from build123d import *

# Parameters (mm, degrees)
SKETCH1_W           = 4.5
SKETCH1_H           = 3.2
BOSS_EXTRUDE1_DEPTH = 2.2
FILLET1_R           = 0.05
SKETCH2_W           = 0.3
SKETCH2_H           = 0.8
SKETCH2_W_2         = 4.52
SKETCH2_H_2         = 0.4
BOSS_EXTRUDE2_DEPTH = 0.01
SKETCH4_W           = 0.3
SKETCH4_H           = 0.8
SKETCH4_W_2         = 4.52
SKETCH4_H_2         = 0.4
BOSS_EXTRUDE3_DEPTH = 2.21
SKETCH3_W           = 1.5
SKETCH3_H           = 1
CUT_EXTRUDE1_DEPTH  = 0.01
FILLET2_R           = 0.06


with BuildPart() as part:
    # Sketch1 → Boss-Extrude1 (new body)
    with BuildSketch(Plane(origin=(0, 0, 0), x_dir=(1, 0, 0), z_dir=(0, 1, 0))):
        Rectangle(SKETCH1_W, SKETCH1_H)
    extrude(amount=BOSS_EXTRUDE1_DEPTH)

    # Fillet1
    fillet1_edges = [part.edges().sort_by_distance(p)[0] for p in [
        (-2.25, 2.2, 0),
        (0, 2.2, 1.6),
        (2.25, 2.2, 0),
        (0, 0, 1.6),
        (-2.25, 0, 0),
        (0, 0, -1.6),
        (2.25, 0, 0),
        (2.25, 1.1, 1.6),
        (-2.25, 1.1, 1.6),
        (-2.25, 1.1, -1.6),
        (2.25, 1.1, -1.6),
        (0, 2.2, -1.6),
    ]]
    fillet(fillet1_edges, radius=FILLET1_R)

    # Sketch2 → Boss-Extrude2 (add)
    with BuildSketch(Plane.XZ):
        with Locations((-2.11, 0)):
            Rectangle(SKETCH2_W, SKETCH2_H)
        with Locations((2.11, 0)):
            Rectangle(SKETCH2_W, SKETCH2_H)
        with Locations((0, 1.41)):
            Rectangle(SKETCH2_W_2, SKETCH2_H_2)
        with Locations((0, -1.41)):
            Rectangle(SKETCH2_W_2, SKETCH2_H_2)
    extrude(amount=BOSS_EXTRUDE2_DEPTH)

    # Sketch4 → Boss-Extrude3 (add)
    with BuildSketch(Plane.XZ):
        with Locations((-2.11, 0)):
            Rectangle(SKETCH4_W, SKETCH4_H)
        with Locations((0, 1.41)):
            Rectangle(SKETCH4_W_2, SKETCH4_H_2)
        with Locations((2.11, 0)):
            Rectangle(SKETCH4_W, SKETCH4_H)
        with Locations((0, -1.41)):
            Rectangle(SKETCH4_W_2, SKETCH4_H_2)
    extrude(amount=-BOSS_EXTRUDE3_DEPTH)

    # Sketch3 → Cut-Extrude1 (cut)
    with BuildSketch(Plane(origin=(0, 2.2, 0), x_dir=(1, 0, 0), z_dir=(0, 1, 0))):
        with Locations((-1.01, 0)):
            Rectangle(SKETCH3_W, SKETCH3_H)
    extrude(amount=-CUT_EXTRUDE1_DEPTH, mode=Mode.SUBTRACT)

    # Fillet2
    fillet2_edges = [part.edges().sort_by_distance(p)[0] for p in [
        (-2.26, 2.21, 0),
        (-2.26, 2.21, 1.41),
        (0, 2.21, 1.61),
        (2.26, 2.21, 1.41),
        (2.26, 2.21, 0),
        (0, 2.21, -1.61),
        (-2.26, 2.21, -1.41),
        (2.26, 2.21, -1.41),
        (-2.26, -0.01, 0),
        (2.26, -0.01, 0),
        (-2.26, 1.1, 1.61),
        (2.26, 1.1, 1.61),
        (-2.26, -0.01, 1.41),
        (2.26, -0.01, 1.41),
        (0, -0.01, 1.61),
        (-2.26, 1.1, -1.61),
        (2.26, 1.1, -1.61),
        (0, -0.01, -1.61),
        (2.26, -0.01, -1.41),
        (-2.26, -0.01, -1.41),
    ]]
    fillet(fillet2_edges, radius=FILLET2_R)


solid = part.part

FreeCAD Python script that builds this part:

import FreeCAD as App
import Part
import Sketcher


def edges_at(feature, points):
    """Names of the edges that pass closest to the given points."""
    edges = feature.Shape.Edges
    near = lambda p: min(range(len(edges)), key=lambda i: edges[i].distToShape(Part.Vertex(*p))[0])
    return sorted({f"Edge{near(p) + 1}" for p in points})

doc = App.newDocument("Part")
params = doc.addObject("Spreadsheet::Sheet", "Params")
for row, (alias, value) in enumerate([
    ("sketch1_width", "4.5 mm"),
    ("sketch1_height", "3.2 mm"),
    ("pad1_length", "2.2 mm"),
    ("fillet_radius", "0.05 mm"),
    ("sketch2_width", "0.3 mm"),
    ("sketch2_height", "0.8 mm"),
    ("sketch2_height2", "0.4 mm"),
    ("sketch2_width2", "4.52 mm"),
    ("pad2_length", "0.01 mm"),
    ("sketch3_width", "0.3 mm"),
    ("sketch3_height", "0.8 mm"),
    ("sketch3_height2", "0.4 mm"),
    ("sketch3_width2", "4.52 mm"),
    ("pad3_length", "2.21 mm"),
    ("sketch4_height", "1 mm"),
    ("sketch4_width", "1.5 mm"),
    ("pocket1_length", "0.01 mm"),
    ("fillet2_radius", "0.06 mm"),
], start=1):
    params.set(f"A{row}", alias)
    params.set(f"B{row}", "=" + value)
    params.setAlias(f"B{row}", alias)

body = doc.addObject("PartDesign::Body", "Body")

sketch1 = body.newObject("Sketcher::SketchObject", "Sketch")
sketch1.AttachmentSupport = (doc.getObject("XZ_Plane"), [""])
sketch1.MapMode = "FlatFace"
sketch1.addGeometry(Part.LineSegment(App.Vector(-2.2, -1.6, 0), App.Vector(-2.2, 1.6, 0)), False)
sketch1.addGeometry(Part.LineSegment(App.Vector(-2.2, 1.6, 0), App.Vector(2.2, 1.6, 0)), False)
sketch1.addGeometry(Part.LineSegment(App.Vector(2.2, 1.6, 0), App.Vector(2.2, -1.6, 0)), False)
sketch1.addGeometry(Part.LineSegment(App.Vector(2.2, -1.6, 0), App.Vector(-2.2, -1.6, 0)), False)
sketch1.addConstraint(Sketcher.Constraint("Coincident", 0, 2, 1, 1))
sketch1.addConstraint(Sketcher.Constraint("Coincident", 1, 2, 2, 1))
sketch1.addConstraint(Sketcher.Constraint("Coincident", 2, 2, 3, 1))
sketch1.addConstraint(Sketcher.Constraint("Coincident", 3, 2, 0, 1))
sketch1.addConstraint(Sketcher.Constraint("Vertical", 0))
sketch1.addConstraint(Sketcher.Constraint("Horizontal", 1))
sketch1.addConstraint(Sketcher.Constraint("Vertical", 2))
sketch1.addConstraint(Sketcher.Constraint("Horizontal", 3))
sketch1.addConstraint(Sketcher.Constraint("Symmetric", 0, 2, 2, 2, -1, 1))
sketch1.addConstraint(Sketcher.Constraint("DistanceX", 1, 1, 1, 2, 4.5))
sketch1.addConstraint(Sketcher.Constraint("DistanceY", 0, 1, 0, 2, 3.2))
sketch1.setExpression("Constraints[9]", "Params.sketch1_width")
sketch1.setExpression("Constraints[10]", "Params.sketch1_height")
pad1 = body.newObject("PartDesign::Pad", "Pad")
pad1.Profile = sketch1
pad1.setExpression("Length", "Params.pad1_length")
pad1.Reversed = True
doc.recompute()

fillet = body.newObject("PartDesign::Fillet", "Fillet")
fillet.Base = (pad1, ["Edge1"])
fillet.UseAllEdges = True
fillet.setExpression("Radius", "Params.fillet_radius")

sketch2 = body.newObject("Sketcher::SketchObject", "Sketch001")
sketch2.AttachmentSupport = (doc.getObject("XZ_Plane"), [""])
sketch2.MapMode = "FlatFace"
sketch2.addGeometry(Part.LineSegment(App.Vector(-2.26, 0.4, 0), App.Vector(-2.26, -0.4, 0)), False)
sketch2.addGeometry(Part.LineSegment(App.Vector(-2.26, -0.4, 0), App.Vector(-1.96, -0.4, 0)), False)
sketch2.addGeometry(Part.LineSegment(App.Vector(-1.96, -0.4, 0), App.Vector(-1.96, 0.4, 0)), False)
sketch2.addGeometry(Part.LineSegment(App.Vector(-1.96, 0.4, 0), App.Vector(-2.26, 0.4, 0)), False)
sketch2.addGeometry(Part.LineSegment(App.Vector(1.96, 0.4, 0), App.Vector(1.96, -0.4, 0)), False)
sketch2.addGeometry(Part.LineSegment(App.Vector(1.96, -0.4, 0), App.Vector(2.26, -0.4, 0)), False)
sketch2.addGeometry(Part.LineSegment(App.Vector(2.26, -0.4, 0), App.Vector(2.26, 0.4, 0)), False)
sketch2.addGeometry(Part.LineSegment(App.Vector(2.26, 0.4, 0), App.Vector(1.96, 0.4, 0)), False)
sketch2.addGeometry(Part.LineSegment(App.Vector(-2.26, 1.61, 0), App.Vector(-2.26, 1.21, 0)), False)
sketch2.addGeometry(Part.LineSegment(App.Vector(-2.26, 1.21, 0), App.Vector(2.26, 1.21, 0)), False)
sketch2.addGeometry(Part.LineSegment(App.Vector(2.26, 1.21, 0), App.Vector(2.26, 1.61, 0)), False)
sketch2.addGeometry(Part.LineSegment(App.Vector(2.26, 1.61, 0), App.Vector(-2.26, 1.61, 0)), False)
sketch2.addGeometry(Part.LineSegment(App.Vector(-2.26, -1.21, 0), App.Vector(-2.26, -1.61, 0)), False)
sketch2.addGeometry(Part.LineSegment(App.Vector(-2.26, -1.61, 0), App.Vector(2.26, -1.61, 0)), False)
sketch2.addGeometry(Part.LineSegment(App.Vector(2.26, -1.61, 0), App.Vector(2.26, -1.21, 0)), False)
sketch2.addGeometry(Part.LineSegment(App.Vector(2.26, -1.21, 0), App.Vector(-2.26, -1.21, 0)), False)
sketch2.addConstraint(Sketcher.Constraint("Coincident", 0, 2, 1, 1))
sketch2.addConstraint(Sketcher.Constraint("Coincident", 1, 2, 2, 1))
sketch2.addConstraint(Sketcher.Constraint("Coincident", 2, 2, 3, 1))
sketch2.addConstraint(Sketcher.Constraint("Coincident", 3, 2, 0, 1))
sketch2.addConstraint(Sketcher.Constraint("Coincident", 4, 2, 5, 1))
sketch2.addConstraint(Sketcher.Constraint("Coincident", 5, 2, 6, 1))
sketch2.addConstraint(Sketcher.Constraint("Coincident", 6, 2, 7, 1))
sketch2.addConstraint(Sketcher.Constraint("Coincident", 7, 2, 4, 1))
sketch2.addConstraint(Sketcher.Constraint("Coincident", 8, 2, 9, 1))
sketch2.addConstraint(Sketcher.Constraint("Coincident", 9, 2, 10, 1))
sketch2.addConstraint(Sketcher.Constraint("Coincident", 10, 2, 11, 1))
sketch2.addConstraint(Sketcher.Constraint("Coincident", 11, 2, 8, 1))
sketch2.addConstraint(Sketcher.Constraint("Coincident", 12, 2, 13, 1))
sketch2.addConstraint(Sketcher.Constraint("Coincident", 13, 2, 14, 1))
sketch2.addConstraint(Sketcher.Constraint("Coincident", 14, 2, 15, 1))
sketch2.addConstraint(Sketcher.Constraint("Coincident", 15, 2, 12, 1))
sketch2.addConstraint(Sketcher.Constraint("Vertical", 0))
sketch2.addConstraint(Sketcher.Constraint("Horizontal", 1))
sketch2.addConstraint(Sketcher.Constraint("Vertical", 2))
sketch2.addConstraint(Sketcher.Constraint("Horizontal", 3))
sketch2.addConstraint(Sketcher.Constraint("Vertical", 4))
sketch2.addConstraint(Sketcher.Constraint("Horizontal", 5))
sketch2.addConstraint(Sketcher.Constraint("Vertical", 6))
sketch2.addConstraint(Sketcher.Constraint("Horizontal", 7))
sketch2.addConstraint(Sketcher.Constraint("Vertical", 8))
sketch2.addConstraint(Sketcher.Constraint("Horizontal", 9))
sketch2.addConstraint(Sketcher.Constraint("Vertical", 10))
sketch2.addConstraint(Sketcher.Constraint("Horizontal", 11))
sketch2.addConstraint(Sketcher.Constraint("Vertical", 12))
sketch2.addConstraint(Sketcher.Constraint("Horizontal", 13))
sketch2.addConstraint(Sketcher.Constraint("Vertical", 14))
sketch2.addConstraint(Sketcher.Constraint("Horizontal", 15))
sketch2.addConstraint(Sketcher.Constraint("Symmetric", 2, 2, 4, 2, -1, 1))
sketch2.addConstraint(Sketcher.Constraint("Symmetric", 0, 2, 6, 2, -1, 1))
sketch2.addConstraint(Sketcher.Constraint("Symmetric", 10, 2, 12, 2, -1, 1))
sketch2.addConstraint(Sketcher.Constraint("Symmetric", 8, 2, 14, 2, -1, 1))
sketch2.addConstraint(Sketcher.Constraint("Horizontal", 1, 2, 4, 2))
sketch2.addConstraint(Sketcher.Constraint("Vertical", 3, 2, 8, 2))
sketch2.addConstraint(Sketcher.Constraint("Vertical", 6, 2, 9, 2))
sketch2.addConstraint(Sketcher.Constraint("DistanceX", 1, 1, 1, 2, 0.3))
sketch2.addConstraint(Sketcher.Constraint("DistanceY", 0, 2, 0, 1, 0.8))
sketch2.addConstraint(Sketcher.Constraint("DistanceY", 8, 2, 8, 1, 0.4))
sketch2.addConstraint(Sketcher.Constraint("DistanceX", 9, 1, 9, 2, 4.52))
sketch2.addConstraint(Sketcher.Constraint("DistanceY", -1, 1, 8, 2, 1.21))
sketch2.setExpression("Constraints[39]", "Params.sketch2_width")
sketch2.setExpression("Constraints[40]", "Params.sketch2_height")
sketch2.setExpression("Constraints[41]", "Params.sketch2_height2")
sketch2.setExpression("Constraints[42]", "Params.sketch2_width2")
pad2 = body.newObject("PartDesign::Pad", "Pad001")
pad2.Profile = sketch2
pad2.setExpression("Length", "Params.pad2_length")

sketch3 = body.newObject("Sketcher::SketchObject", "Sketch002")
sketch3.AttachmentSupport = (doc.getObject("XZ_Plane"), [""])
sketch3.MapMode = "FlatFace"
sketch3.addGeometry(Part.LineSegment(App.Vector(-2.26, 0.4, 0), App.Vector(-2.26, -0.4, 0)), False)
sketch3.addGeometry(Part.LineSegment(App.Vector(-2.26, -0.4, 0), App.Vector(-1.96, -0.4, 0)), False)
sketch3.addGeometry(Part.LineSegment(App.Vector(-1.96, -0.4, 0), App.Vector(-1.96, 0.4, 0)), False)
sketch3.addGeometry(Part.LineSegment(App.Vector(-1.96, 0.4, 0), App.Vector(-2.26, 0.4, 0)), False)
sketch3.addGeometry(Part.LineSegment(App.Vector(-2.26, 1.61, 0), App.Vector(-2.26, 1.21, 0)), False)
sketch3.addGeometry(Part.LineSegment(App.Vector(-2.26, 1.21, 0), App.Vector(2.26, 1.21, 0)), False)
sketch3.addGeometry(Part.LineSegment(App.Vector(2.26, 1.21, 0), App.Vector(2.26, 1.61, 0)), False)
sketch3.addGeometry(Part.LineSegment(App.Vector(2.26, 1.61, 0), App.Vector(-2.26, 1.61, 0)), False)
sketch3.addGeometry(Part.LineSegment(App.Vector(1.96, 0.4, 0), App.Vector(1.96, -0.4, 0)), False)
sketch3.addGeometry(Part.LineSegment(App.Vector(1.96, -0.4, 0), App.Vector(2.26, -0.4, 0)), False)
sketch3.addGeometry(Part.LineSegment(App.Vector(2.26, -0.4, 0), App.Vector(2.26, 0.4, 0)), False)
sketch3.addGeometry(Part.LineSegment(App.Vector(2.26, 0.4, 0), App.Vector(1.96, 0.4, 0)), False)
sketch3.addGeometry(Part.LineSegment(App.Vector(-2.26, -1.21, 0), App.Vector(-2.26, -1.61, 0)), False)
sketch3.addGeometry(Part.LineSegment(App.Vector(-2.26, -1.61, 0), App.Vector(2.26, -1.61, 0)), False)
sketch3.addGeometry(Part.LineSegment(App.Vector(2.26, -1.61, 0), App.Vector(2.26, -1.21, 0)), False)
sketch3.addGeometry(Part.LineSegment(App.Vector(2.26, -1.21, 0), App.Vector(-2.26, -1.21, 0)), False)
sketch3.addConstraint(Sketcher.Constraint("Coincident", 0, 2, 1, 1))
sketch3.addConstraint(Sketcher.Constraint("Coincident", 1, 2, 2, 1))
sketch3.addConstraint(Sketcher.Constraint("Coincident", 2, 2, 3, 1))
sketch3.addConstraint(Sketcher.Constraint("Coincident", 3, 2, 0, 1))
sketch3.addConstraint(Sketcher.Constraint("Coincident", 4, 2, 5, 1))
sketch3.addConstraint(Sketcher.Constraint("Coincident", 5, 2, 6, 1))
sketch3.addConstraint(Sketcher.Constraint("Coincident", 6, 2, 7, 1))
sketch3.addConstraint(Sketcher.Constraint("Coincident", 7, 2, 4, 1))
sketch3.addConstraint(Sketcher.Constraint("Coincident", 8, 2, 9, 1))
sketch3.addConstraint(Sketcher.Constraint("Coincident", 9, 2, 10, 1))
sketch3.addConstraint(Sketcher.Constraint("Coincident", 10, 2, 11, 1))
sketch3.addConstraint(Sketcher.Constraint("Coincident", 11, 2, 8, 1))
sketch3.addConstraint(Sketcher.Constraint("Coincident", 12, 2, 13, 1))
sketch3.addConstraint(Sketcher.Constraint("Coincident", 13, 2, 14, 1))
sketch3.addConstraint(Sketcher.Constraint("Coincident", 14, 2, 15, 1))
sketch3.addConstraint(Sketcher.Constraint("Coincident", 15, 2, 12, 1))
sketch3.addConstraint(Sketcher.Constraint("Vertical", 0))
sketch3.addConstraint(Sketcher.Constraint("Horizontal", 1))
sketch3.addConstraint(Sketcher.Constraint("Vertical", 2))
sketch3.addConstraint(Sketcher.Constraint("Horizontal", 3))
sketch3.addConstraint(Sketcher.Constraint("Vertical", 4))
sketch3.addConstraint(Sketcher.Constraint("Horizontal", 5))
sketch3.addConstraint(Sketcher.Constraint("Vertical", 6))
sketch3.addConstraint(Sketcher.Constraint("Horizontal", 7))
sketch3.addConstraint(Sketcher.Constraint("Vertical", 8))
sketch3.addConstraint(Sketcher.Constraint("Horizontal", 9))
sketch3.addConstraint(Sketcher.Constraint("Vertical", 10))
sketch3.addConstraint(Sketcher.Constraint("Horizontal", 11))
sketch3.addConstraint(Sketcher.Constraint("Vertical", 12))
sketch3.addConstraint(Sketcher.Constraint("Horizontal", 13))
sketch3.addConstraint(Sketcher.Constraint("Vertical", 14))
sketch3.addConstraint(Sketcher.Constraint("Horizontal", 15))
sketch3.addConstraint(Sketcher.Constraint("Symmetric", 2, 2, 8, 2, -1, 1))
sketch3.addConstraint(Sketcher.Constraint("Symmetric", 0, 2, 10, 2, -1, 1))
sketch3.addConstraint(Sketcher.Constraint("Symmetric", 6, 2, 12, 2, -1, 1))
sketch3.addConstraint(Sketcher.Constraint("Symmetric", 4, 2, 14, 2, -1, 1))
sketch3.addConstraint(Sketcher.Constraint("Horizontal", 1, 2, 8, 2))
sketch3.addConstraint(Sketcher.Constraint("Vertical", 3, 2, 4, 2))
sketch3.addConstraint(Sketcher.Constraint("Vertical", 6, 2, 9, 2))
sketch3.addConstraint(Sketcher.Constraint("DistanceX", 1, 1, 1, 2, 0.3))
sketch3.addConstraint(Sketcher.Constraint("DistanceY", 0, 2, 0, 1, 0.8))
sketch3.addConstraint(Sketcher.Constraint("DistanceY", 4, 2, 4, 1, 0.4))
sketch3.addConstraint(Sketcher.Constraint("DistanceX", 5, 1, 5, 2, 4.52))
sketch3.addConstraint(Sketcher.Constraint("DistanceY", -1, 1, 4, 2, 1.21))
sketch3.setExpression("Constraints[39]", "Params.sketch3_width")
sketch3.setExpression("Constraints[40]", "Params.sketch3_height")
sketch3.setExpression("Constraints[41]", "Params.sketch3_height2")
sketch3.setExpression("Constraints[42]", "Params.sketch3_width2")
pad3 = body.newObject("PartDesign::Pad", "Pad002")
pad3.Profile = sketch3
pad3.setExpression("Length", "Params.pad3_length")
pad3.Reversed = True

sketch4 = body.newObject("Sketcher::SketchObject", "Sketch003")
sketch4.AttachmentSupport = (doc.getObject("XZ_Plane"), [""])
sketch4.MapMode = "FlatFace"
sketch4.AttachmentOffset = App.Placement(App.Vector(0, 0, -2.2), App.Rotation())
sketch4.addGeometry(Part.LineSegment(App.Vector(-1.8, -0.5, 0), App.Vector(-1.8, 0.5, 0)), False)
sketch4.addGeometry(Part.LineSegment(App.Vector(-1.8, 0.5, 0), App.Vector(-0.3, 0.5, 0)), False)
sketch4.addGeometry(Part.LineSegment(App.Vector(-0.3, 0.5, 0), App.Vector(-0.3, -0.5, 0)), False)
sketch4.addGeometry(Part.LineSegment(App.Vector(-0.3, -0.5, 0), App.Vector(-1.8, -0.5, 0)), False)
sketch4.addConstraint(Sketcher.Constraint("Coincident", 0, 2, 1, 1))
sketch4.addConstraint(Sketcher.Constraint("Coincident", 1, 2, 2, 1))
sketch4.addConstraint(Sketcher.Constraint("Coincident", 2, 2, 3, 1))
sketch4.addConstraint(Sketcher.Constraint("Coincident", 3, 2, 0, 1))
sketch4.addConstraint(Sketcher.Constraint("Vertical", 0))
sketch4.addConstraint(Sketcher.Constraint("Horizontal", 1))
sketch4.addConstraint(Sketcher.Constraint("Vertical", 2))
sketch4.addConstraint(Sketcher.Constraint("Horizontal", 3))
sketch4.addConstraint(Sketcher.Constraint("DistanceY", 0, 1, 0, 2, 1.0))
sketch4.addConstraint(Sketcher.Constraint("DistanceX", 1, 1, 1, 2, 1.5))
sketch4.addConstraint(Sketcher.Constraint("DistanceY", -1, 1, 0, 2, 0.5))
sketch4.addConstraint(Sketcher.Constraint("DistanceX", 0, 2, -1, 1, 1.76))
sketch4.setExpression("Constraints[8]", "Params.sketch4_height")
sketch4.setExpression("Constraints[9]", "Params.sketch4_width")
pocket1 = body.newObject("PartDesign::Pocket", "Pocket")
pocket1.Profile = sketch4
pocket1.setExpression("Length", "Params.pocket1_length")
pocket1.Reversed = True
doc.recompute()

fillet2 = body.newObject("PartDesign::Fillet", "Fillet001")
fillet2.Base = (pocket1, edges_at(pocket1, [
    (-2.26, 2.21, 0),
    (-2.26, 2.21, 1.41),
    (0, 2.21, 1.61),
    (2.26, 2.21, 1.41),
    (2.26, 2.21, 0),
    (0, 2.21, -1.61),
    (-2.26, 2.21, -1.41),
    (2.26, 2.21, -1.41),
    (-2.26, -0.01, 0),
    (2.26, -0.01, 0),
    (-2.26, 1.1, 1.61),
    (2.26, 1.1, 1.61),
    (-2.26, -0.01, 1.41),
    (2.26, -0.01, 1.41),
    (0, -0.01, 1.61),
    (-2.26, 1.1, -1.61),
    (2.26, 1.1, -1.61),
    (0, -0.01, -1.61),
    (2.26, -0.01, -1.41),
    (-2.26, -0.01, -1.41),
]))
fillet2.setExpression("Radius", "Params.fillet2_radius")

doc.recompute()
